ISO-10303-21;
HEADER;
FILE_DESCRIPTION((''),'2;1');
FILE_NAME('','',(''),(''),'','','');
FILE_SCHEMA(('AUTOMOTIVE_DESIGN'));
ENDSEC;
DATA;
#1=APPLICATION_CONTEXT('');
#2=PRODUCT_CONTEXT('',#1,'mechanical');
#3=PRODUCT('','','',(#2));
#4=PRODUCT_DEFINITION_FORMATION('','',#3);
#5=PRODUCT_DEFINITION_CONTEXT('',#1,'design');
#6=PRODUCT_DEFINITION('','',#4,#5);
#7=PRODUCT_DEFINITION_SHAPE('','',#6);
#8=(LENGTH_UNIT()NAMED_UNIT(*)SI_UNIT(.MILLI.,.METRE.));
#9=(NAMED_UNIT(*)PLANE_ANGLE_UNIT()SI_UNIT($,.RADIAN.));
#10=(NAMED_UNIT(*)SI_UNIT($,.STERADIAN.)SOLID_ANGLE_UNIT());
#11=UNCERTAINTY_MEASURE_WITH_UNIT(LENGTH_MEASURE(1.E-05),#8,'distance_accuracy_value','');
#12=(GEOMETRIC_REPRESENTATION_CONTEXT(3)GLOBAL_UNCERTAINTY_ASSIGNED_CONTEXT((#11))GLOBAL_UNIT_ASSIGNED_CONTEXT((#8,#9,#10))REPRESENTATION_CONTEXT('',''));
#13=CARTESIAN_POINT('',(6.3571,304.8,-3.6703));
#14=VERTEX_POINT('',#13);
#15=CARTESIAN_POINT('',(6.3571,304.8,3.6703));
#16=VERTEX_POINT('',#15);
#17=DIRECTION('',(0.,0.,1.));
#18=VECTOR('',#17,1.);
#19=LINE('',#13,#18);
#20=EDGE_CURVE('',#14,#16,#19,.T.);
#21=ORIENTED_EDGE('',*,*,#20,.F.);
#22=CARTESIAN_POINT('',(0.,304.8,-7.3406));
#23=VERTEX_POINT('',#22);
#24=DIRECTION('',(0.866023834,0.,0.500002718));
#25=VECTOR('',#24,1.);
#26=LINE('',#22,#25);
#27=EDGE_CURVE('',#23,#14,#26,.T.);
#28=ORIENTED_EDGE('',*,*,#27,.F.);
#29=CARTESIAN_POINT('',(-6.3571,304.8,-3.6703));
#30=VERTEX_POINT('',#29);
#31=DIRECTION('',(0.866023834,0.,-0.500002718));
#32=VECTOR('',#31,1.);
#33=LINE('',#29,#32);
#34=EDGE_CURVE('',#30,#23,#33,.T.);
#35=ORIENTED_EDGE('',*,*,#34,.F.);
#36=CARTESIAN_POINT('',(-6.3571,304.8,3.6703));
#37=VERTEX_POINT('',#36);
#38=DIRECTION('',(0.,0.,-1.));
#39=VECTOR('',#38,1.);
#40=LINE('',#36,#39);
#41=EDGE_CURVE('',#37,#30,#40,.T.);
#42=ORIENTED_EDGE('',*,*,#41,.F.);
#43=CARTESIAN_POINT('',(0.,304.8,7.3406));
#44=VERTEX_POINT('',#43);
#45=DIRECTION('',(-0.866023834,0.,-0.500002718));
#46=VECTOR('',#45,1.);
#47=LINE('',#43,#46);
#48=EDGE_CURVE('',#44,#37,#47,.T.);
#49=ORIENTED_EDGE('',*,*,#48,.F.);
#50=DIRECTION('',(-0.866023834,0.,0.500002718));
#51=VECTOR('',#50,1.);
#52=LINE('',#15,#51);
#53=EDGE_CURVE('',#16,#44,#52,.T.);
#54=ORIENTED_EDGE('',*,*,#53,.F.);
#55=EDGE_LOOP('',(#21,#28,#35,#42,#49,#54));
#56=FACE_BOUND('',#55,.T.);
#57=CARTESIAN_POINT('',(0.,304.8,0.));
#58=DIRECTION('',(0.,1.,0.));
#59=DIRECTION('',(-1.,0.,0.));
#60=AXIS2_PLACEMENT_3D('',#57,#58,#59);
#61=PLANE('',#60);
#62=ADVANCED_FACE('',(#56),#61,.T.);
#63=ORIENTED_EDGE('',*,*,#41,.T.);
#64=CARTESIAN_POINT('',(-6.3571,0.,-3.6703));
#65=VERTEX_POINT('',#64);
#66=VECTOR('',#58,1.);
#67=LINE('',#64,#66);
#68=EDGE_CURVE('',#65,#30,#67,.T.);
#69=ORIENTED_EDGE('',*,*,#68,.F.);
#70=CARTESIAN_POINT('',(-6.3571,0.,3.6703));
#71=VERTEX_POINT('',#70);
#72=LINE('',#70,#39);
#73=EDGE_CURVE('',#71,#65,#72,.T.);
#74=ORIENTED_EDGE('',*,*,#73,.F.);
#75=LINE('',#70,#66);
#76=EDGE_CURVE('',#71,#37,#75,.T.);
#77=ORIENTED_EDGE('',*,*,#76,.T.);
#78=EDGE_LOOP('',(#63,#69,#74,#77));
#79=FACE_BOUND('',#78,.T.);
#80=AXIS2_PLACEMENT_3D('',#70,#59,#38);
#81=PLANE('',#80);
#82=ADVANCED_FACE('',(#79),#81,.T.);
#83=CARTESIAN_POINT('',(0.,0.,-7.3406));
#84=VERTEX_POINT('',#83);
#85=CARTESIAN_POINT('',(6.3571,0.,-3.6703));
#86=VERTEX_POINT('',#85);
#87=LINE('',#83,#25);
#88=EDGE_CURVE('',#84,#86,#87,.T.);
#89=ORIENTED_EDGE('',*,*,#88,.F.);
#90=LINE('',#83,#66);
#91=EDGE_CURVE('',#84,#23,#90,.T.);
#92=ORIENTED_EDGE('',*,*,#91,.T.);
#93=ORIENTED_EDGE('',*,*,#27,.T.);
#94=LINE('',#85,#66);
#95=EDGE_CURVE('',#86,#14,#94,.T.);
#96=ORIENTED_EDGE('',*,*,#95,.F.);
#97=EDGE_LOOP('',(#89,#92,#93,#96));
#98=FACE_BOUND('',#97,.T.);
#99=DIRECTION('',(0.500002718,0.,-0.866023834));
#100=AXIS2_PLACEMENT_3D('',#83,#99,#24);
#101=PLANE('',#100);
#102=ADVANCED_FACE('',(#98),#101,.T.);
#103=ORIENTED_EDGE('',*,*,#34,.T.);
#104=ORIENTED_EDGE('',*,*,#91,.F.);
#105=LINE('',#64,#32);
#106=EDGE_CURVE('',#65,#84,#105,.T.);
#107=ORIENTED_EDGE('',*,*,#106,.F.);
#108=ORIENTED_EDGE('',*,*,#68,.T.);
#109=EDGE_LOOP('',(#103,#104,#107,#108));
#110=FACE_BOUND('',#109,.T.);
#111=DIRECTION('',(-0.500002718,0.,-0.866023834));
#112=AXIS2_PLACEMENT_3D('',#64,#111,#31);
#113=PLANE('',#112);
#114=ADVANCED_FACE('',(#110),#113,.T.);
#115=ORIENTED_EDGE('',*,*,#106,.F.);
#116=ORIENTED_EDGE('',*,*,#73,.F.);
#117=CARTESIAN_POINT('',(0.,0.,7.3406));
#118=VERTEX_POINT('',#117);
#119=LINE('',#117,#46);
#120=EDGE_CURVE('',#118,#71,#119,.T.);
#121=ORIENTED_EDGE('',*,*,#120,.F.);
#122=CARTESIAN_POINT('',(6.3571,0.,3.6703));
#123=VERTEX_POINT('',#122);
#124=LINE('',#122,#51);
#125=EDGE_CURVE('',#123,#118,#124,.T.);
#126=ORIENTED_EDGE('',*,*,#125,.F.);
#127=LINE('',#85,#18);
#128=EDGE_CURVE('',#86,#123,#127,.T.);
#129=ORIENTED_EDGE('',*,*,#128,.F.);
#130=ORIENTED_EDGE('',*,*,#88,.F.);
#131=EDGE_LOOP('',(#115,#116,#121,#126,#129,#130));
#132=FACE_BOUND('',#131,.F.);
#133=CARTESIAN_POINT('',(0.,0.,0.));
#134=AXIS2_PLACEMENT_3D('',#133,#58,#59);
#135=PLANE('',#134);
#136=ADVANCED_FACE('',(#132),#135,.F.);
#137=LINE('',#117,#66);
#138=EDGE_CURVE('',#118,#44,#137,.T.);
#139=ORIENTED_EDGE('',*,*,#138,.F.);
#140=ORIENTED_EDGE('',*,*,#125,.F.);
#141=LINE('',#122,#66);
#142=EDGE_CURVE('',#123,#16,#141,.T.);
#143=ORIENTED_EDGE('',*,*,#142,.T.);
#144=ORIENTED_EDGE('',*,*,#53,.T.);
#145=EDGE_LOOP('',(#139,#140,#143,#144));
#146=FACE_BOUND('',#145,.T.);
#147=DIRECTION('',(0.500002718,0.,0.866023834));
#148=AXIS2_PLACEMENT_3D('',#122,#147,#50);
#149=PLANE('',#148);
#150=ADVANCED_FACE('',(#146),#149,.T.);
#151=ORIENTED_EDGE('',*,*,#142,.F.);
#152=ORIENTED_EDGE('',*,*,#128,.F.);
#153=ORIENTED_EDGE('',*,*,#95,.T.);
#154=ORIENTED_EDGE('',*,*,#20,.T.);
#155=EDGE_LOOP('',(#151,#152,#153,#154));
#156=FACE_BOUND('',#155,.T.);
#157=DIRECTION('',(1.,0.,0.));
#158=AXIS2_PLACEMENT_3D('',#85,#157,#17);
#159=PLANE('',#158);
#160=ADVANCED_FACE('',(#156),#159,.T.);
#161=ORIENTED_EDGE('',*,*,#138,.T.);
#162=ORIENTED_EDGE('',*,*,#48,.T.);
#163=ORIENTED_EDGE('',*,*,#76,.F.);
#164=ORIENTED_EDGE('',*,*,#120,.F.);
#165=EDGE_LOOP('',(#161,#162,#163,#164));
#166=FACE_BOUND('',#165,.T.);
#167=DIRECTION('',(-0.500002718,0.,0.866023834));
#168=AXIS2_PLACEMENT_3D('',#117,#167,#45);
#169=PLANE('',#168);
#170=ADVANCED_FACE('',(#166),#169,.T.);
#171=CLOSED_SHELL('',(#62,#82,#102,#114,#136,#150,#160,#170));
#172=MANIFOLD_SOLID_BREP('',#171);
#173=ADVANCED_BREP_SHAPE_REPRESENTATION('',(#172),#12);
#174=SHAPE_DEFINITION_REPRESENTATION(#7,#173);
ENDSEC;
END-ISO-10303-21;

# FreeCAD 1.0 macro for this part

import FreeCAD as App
import Part
import Sketcher

V = App.Vector
Q = App.Units.Quantity

doc = App.newDocument("Part")
body = doc.addObject("PartDesign::Body", "Body")

# Sketch on XZ plane
sketch1 = doc.addObject("Sketcher::SketchObject", "Sketch")
body.addObject(sketch1)
sketch1.AttachmentSupport = (doc.XZ_Plane, [""])
sketch1.MapMode = "FlatFace"
sketch1.addGeometry([
    Part.LineSegment(V(6, -4, 0), V(0, -7, 0)),  # 0
    Part.LineSegment(V(0, -7, 0), V(-6, -4, 0)),  # 1
    Part.LineSegment(V(-6, -4, 0), V(-6, 4, 0)),  # 2
    Part.LineSegment(V(-6, 4, 0), V(0, 7, 0)),  # 3
    Part.LineSegment(V(0, 7, 0), V(6, 4, 0)),  # 4
    Part.LineSegment(V(6, 4, 0), V(6, -4, 0)),  # 5
], False)
sketch1.addConstraint([
    Sketcher.Constraint("Coincident", 0, 2, 1, 1),
    Sketcher.Constraint("Coincident", 1, 2, 2, 1),
    Sketcher.Constraint("Coincident", 2, 2, 3, 1),
    Sketcher.Constraint("Coincident", 3, 2, 4, 1),
    Sketcher.Constraint("Coincident", 4, 2, 5, 1),
    Sketcher.Constraint("Coincident", 5, 2, 0, 1),
    Sketcher.Constraint("Vertical", 2),
    Sketcher.Constraint("Vertical", 5),
    Sketcher.Constraint("Symmetric", 0, 2, 3, 2, -1, 1),
    Sketcher.Constraint("Symmetric", 1, 2, 4, 2, -1, 1),
    Sketcher.Constraint("PointOnObject", 0, 2, -2),
    Sketcher.Constraint("Parallel", 0, 3),
    Sketcher.Constraint("Horizontal", 2, 2, 4, 2),
    Sketcher.Constraint("DistanceY", 2, 1, 2, 2, Q("0.289 in")),
    Sketcher.Constraint("Distance", 0, Q("0.289 in")),
    Sketcher.Constraint("DistanceY", 0, 2, -1, 1, Q("0.289 in")),
])
pad1 = doc.addObject("PartDesign::Pad", "Pad")
body.addObject(pad1)
pad1.Profile = sketch1
pad1.Length = Q("12 in")
pad1.Reversed = True

doc.recompute()
